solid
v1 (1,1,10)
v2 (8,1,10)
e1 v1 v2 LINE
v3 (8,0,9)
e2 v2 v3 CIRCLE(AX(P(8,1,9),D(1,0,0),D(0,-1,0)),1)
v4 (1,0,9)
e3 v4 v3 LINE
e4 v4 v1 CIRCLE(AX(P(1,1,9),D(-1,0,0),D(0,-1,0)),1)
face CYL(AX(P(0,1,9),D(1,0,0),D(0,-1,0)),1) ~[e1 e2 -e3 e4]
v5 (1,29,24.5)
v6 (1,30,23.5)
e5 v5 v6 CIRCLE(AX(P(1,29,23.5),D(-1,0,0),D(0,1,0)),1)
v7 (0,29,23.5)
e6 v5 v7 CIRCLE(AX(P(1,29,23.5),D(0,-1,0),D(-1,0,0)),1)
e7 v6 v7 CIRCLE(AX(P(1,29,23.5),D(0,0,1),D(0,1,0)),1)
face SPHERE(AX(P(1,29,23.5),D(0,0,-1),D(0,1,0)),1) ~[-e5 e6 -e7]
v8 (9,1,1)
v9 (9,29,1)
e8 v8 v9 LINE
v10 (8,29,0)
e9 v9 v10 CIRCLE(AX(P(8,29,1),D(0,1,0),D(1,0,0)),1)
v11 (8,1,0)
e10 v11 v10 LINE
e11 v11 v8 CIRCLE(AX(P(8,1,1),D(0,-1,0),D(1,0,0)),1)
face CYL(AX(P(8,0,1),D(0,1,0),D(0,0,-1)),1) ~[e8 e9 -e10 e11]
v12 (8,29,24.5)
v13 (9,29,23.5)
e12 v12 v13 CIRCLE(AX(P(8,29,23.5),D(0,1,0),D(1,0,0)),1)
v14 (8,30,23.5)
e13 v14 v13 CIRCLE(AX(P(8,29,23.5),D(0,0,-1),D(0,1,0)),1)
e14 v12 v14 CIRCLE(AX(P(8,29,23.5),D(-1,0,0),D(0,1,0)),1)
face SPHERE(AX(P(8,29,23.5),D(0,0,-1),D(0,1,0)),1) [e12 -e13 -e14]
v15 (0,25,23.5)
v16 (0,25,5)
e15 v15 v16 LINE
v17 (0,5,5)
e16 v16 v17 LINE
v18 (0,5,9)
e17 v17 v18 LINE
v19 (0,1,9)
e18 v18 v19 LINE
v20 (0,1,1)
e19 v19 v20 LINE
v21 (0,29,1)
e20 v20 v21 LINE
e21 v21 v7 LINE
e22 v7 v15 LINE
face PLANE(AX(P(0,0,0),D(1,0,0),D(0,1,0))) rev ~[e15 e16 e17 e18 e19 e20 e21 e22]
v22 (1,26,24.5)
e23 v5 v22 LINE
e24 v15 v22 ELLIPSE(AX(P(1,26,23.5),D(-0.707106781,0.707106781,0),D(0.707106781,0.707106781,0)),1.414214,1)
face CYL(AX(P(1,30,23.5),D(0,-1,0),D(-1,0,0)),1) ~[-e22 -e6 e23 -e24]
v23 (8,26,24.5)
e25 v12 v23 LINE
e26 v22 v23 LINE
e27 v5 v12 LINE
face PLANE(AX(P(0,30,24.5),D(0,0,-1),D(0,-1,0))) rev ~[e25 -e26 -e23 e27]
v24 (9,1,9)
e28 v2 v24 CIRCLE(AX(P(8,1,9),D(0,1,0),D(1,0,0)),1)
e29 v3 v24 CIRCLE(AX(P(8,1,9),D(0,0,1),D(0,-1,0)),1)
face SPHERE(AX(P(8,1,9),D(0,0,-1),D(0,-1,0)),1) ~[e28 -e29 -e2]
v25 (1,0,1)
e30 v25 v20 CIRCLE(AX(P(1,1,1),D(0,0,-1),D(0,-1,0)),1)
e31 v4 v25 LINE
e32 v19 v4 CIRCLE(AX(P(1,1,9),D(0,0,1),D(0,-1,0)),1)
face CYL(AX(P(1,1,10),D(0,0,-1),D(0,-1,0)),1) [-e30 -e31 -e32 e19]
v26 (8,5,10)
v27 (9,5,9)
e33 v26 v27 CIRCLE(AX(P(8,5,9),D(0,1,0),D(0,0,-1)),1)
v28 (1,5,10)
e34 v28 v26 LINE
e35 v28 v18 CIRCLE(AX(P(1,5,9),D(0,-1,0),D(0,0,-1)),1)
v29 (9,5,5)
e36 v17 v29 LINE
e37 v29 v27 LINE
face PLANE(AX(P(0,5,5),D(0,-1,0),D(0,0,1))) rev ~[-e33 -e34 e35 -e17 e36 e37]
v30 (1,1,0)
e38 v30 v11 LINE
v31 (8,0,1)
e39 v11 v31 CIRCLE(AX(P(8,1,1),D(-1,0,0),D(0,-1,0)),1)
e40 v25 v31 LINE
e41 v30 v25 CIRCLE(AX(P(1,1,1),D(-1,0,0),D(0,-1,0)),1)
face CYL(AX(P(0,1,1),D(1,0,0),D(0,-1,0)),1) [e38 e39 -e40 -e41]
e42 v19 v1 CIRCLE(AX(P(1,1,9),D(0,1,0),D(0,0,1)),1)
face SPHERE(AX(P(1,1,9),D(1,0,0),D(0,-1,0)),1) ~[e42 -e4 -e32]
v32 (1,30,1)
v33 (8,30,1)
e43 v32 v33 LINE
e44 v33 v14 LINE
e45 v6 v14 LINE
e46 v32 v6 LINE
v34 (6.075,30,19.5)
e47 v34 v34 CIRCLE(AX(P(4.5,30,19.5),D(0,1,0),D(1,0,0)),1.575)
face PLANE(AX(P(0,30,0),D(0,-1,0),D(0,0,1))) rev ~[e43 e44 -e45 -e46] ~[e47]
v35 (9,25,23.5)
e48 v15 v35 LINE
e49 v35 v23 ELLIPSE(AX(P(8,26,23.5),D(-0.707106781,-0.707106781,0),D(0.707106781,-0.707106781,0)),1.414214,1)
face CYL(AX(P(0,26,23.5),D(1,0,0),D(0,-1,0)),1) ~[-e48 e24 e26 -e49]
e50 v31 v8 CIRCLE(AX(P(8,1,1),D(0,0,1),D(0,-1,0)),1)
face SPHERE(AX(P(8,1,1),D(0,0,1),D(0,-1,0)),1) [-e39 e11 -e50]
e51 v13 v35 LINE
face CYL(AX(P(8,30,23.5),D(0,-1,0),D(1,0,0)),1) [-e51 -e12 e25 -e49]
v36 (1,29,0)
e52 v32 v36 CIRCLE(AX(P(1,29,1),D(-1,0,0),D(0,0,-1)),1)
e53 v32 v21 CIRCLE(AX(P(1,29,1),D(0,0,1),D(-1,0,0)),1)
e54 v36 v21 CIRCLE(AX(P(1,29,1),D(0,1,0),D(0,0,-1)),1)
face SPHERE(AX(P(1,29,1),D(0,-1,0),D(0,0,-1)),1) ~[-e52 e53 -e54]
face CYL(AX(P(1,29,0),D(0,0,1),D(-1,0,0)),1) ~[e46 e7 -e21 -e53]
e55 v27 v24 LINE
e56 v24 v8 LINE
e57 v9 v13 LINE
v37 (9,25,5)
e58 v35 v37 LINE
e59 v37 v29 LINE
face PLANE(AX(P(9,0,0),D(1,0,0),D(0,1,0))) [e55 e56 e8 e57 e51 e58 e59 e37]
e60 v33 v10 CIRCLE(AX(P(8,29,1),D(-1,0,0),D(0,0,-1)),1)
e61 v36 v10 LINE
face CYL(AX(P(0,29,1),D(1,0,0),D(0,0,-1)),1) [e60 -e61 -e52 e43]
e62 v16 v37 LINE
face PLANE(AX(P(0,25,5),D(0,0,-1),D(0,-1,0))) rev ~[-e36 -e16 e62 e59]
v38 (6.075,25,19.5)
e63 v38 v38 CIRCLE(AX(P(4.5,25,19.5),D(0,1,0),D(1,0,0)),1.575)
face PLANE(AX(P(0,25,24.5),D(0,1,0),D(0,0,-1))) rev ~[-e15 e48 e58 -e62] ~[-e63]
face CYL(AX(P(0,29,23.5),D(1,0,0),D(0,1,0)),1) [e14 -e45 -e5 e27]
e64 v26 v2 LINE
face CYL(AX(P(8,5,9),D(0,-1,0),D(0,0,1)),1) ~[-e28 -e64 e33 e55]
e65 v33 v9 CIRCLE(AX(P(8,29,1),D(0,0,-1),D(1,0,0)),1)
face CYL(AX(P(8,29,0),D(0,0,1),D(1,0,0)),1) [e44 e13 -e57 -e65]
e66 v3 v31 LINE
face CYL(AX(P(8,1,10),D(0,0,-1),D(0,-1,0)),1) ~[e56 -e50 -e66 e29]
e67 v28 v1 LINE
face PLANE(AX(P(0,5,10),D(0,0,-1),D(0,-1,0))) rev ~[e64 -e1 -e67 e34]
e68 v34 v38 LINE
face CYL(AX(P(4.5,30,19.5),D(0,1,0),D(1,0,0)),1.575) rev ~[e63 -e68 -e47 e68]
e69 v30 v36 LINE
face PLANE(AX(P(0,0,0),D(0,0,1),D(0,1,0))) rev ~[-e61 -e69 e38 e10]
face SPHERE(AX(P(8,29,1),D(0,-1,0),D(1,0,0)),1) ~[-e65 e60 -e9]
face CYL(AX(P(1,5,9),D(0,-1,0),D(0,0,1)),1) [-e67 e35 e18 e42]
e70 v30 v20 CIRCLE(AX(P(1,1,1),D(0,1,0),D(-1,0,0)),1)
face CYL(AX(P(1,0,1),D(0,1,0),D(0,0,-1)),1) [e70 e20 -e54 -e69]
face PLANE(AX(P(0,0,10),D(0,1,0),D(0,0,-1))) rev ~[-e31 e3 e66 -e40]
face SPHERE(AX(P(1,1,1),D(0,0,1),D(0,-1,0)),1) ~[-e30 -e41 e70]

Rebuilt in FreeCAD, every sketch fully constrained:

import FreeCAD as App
import Part
import Sketcher
Q = App.Units.Quantity


def edges_at(feature, points):
    """Names of the edges that pass closest to the given points."""
    edges = feature.Shape.Edges
    near = lambda p: min(range(len(edges)), key=lambda i: edges[i].distToShape(Part.Vertex(*p))[0])
    return sorted({f"Edge{near(p) + 1}" for p in points})

doc = App.newDocument("Part")
params = doc.addObject("Spreadsheet::Sheet", "Params")
for row, (alias, value) in enumerate([
    ("sketch1_width", "30 mm"),
    ("sketch1_width2", "5 mm"),
    ("sketch1_height", "24.5 mm"),
    ("sketch1_height2", "19.5 mm"),
    ("pad1_length", "9 mm"),
    ("sketch2_diameter", "3.15 mm"),
    ("pocket1_length", "5 mm"),
    ("fillet_radius", "1 mm"),
], start=1):
    params.set(f"A{row}", alias)
    params.set(f"B{row}", "=" + value)
    params.setAlias(f"B{row}", alias)

body = doc.addObject("PartDesign::Body", "Body")

sketch1 = body.newObject("Sketcher::SketchObject", "Sketch")
sketch1.AttachmentSupport = (doc.getObject("YZ_Plane"), [""])
sketch1.MapMode = "FlatFace"
sketch1.addGeometry([
    Part.LineSegment(App.Vector(0, 10, 0), App.Vector(0, 0, 0)),
    Part.LineSegment(App.Vector(0, 0, 0), App.Vector(30, 0, 0)),
    Part.LineSegment(App.Vector(30, 0, 0), App.Vector(30, 24, 0)),
    Part.LineSegment(App.Vector(30, 24, 0), App.Vector(25, 24, 0)),
    Part.LineSegment(App.Vector(25, 24, 0), App.Vector(25, 5, 0)),
    Part.LineSegment(App.Vector(25, 5, 0), App.Vector(5, 5, 0)),
    Part.LineSegment(App.Vector(5, 5, 0), App.Vector(5, 10, 0)),
    Part.LineSegment(App.Vector(5, 10, 0), App.Vector(0, 10, 0)),
], False)
sketch1.addConstraint([
    Sketcher.Constraint("Coincident", 0, 2, 1, 1),
    Sketcher.Constraint("Coincident", 1, 2, 2, 1),
    Sketcher.Constraint("Coincident", 2, 2, 3, 1),
    Sketcher.Constraint("Coincident", 3, 2, 4, 1),
    Sketcher.Constraint("Coincident", 4, 2, 5, 1),
    Sketcher.Constraint("Coincident", 5, 2, 6, 1),
    Sketcher.Constraint("Coincident", 6, 2, 7, 1),
    Sketcher.Constraint("Coincident", 7, 2, 0, 1),
    Sketcher.Constraint("Vertical", 0),
    Sketcher.Constraint("Horizontal", 1),
    Sketcher.Constraint("Vertical", 2),
    Sketcher.Constraint("Horizontal", 3),
    Sketcher.Constraint("Vertical", 4),
    Sketcher.Constraint("Horizontal", 5),
    Sketcher.Constraint("Vertical", 6),
    Sketcher.Constraint("Horizontal", 7),
    Sketcher.Constraint("Coincident", 0, 2, -1, 1),
    Sketcher.Constraint("Equal", 3, 7),
    Sketcher.Constraint("Equal", 7, 6),
    Sketcher.Constraint("DistanceX", 1, 1, 1, 2, Q("30 mm")),
    Sketcher.Constraint("DistanceX", 3, 2, 3, 1, Q("5 mm")),
    Sketcher.Constraint("DistanceY", 2, 1, 2, 2, Q("24.5 mm")),
    Sketcher.Constraint("DistanceY", 4, 2, 4, 1, Q("19.5 mm")),
])
sketch1.setExpression("Constraints[19]", "Params.sketch1_width")
sketch1.setExpression("Constraints[20]", "Params.sketch1_width2")
sketch1.setExpression("Constraints[21]", "Params.sketch1_height")
sketch1.setExpression("Constraints[22]", "Params.sketch1_height2")
pad1 = body.newObject("PartDesign::Pad", "Pad")
pad1.Profile = sketch1
pad1.setExpression("Length", "Params.pad1_length")

sketch2 = body.newObject("Sketcher::SketchObject", "Sketch001")
sketch2.AttachmentSupport = (doc.getObject("XZ_Plane"), [""])
sketch2.MapMode = "FlatFace"
sketch2.AttachmentOffset = App.Placement(App.Vector(0, 0, -30), App.Rotation())
sketch2.addGeometry(Part.Circle(App.Vector(4.5, 19.5, 0), App.Vector(0, 0, 1), 1.6), False)
sketch2.addConstraint([
    Sketcher.Constraint("Diameter", 0, Q("3.15 mm")),
    Sketcher.Constraint("DistanceX", -1, 1, 0, 3, Q("4.5 mm")),
    Sketcher.Constraint("DistanceY", -1, 1, 0, 3, Q("19.5 mm")),
])
sketch2.setExpression("Constraints[0]", "Params.sketch2_diameter")
pocket1 = body.newObject("PartDesign::Pocket", "Pocket")
pocket1.Profile = sketch2
pocket1.setExpression("Length", "Params.pocket1_length")
pocket1.Reversed = True
doc.recompute()

fillet = body.newObject("PartDesign::Fillet", "Fillet")
fillet.Base = (pocket1, edges_at(pocket1, [
    (9, 0, 5),
    (4.5, 0, 10),
    (0, 0, 5),
    (4.5, 0, 0),
    (9, 15, 0),
    (0, 15, 0),
    (9, 30, 12.25),
    (4.5, 30, 0),
    (0, 30, 12.25),
    (4.5, 30, 24.5),
    (4.5, 25, 24.5),
    (9, 27.5, 24.5),
    (0, 27.5, 24.5),
    (9, 2.5, 10),
    (0, 2.5, 10),
]))
fillet.setExpression("Radius", "Params.fillet_radius")

doc.recompute()
